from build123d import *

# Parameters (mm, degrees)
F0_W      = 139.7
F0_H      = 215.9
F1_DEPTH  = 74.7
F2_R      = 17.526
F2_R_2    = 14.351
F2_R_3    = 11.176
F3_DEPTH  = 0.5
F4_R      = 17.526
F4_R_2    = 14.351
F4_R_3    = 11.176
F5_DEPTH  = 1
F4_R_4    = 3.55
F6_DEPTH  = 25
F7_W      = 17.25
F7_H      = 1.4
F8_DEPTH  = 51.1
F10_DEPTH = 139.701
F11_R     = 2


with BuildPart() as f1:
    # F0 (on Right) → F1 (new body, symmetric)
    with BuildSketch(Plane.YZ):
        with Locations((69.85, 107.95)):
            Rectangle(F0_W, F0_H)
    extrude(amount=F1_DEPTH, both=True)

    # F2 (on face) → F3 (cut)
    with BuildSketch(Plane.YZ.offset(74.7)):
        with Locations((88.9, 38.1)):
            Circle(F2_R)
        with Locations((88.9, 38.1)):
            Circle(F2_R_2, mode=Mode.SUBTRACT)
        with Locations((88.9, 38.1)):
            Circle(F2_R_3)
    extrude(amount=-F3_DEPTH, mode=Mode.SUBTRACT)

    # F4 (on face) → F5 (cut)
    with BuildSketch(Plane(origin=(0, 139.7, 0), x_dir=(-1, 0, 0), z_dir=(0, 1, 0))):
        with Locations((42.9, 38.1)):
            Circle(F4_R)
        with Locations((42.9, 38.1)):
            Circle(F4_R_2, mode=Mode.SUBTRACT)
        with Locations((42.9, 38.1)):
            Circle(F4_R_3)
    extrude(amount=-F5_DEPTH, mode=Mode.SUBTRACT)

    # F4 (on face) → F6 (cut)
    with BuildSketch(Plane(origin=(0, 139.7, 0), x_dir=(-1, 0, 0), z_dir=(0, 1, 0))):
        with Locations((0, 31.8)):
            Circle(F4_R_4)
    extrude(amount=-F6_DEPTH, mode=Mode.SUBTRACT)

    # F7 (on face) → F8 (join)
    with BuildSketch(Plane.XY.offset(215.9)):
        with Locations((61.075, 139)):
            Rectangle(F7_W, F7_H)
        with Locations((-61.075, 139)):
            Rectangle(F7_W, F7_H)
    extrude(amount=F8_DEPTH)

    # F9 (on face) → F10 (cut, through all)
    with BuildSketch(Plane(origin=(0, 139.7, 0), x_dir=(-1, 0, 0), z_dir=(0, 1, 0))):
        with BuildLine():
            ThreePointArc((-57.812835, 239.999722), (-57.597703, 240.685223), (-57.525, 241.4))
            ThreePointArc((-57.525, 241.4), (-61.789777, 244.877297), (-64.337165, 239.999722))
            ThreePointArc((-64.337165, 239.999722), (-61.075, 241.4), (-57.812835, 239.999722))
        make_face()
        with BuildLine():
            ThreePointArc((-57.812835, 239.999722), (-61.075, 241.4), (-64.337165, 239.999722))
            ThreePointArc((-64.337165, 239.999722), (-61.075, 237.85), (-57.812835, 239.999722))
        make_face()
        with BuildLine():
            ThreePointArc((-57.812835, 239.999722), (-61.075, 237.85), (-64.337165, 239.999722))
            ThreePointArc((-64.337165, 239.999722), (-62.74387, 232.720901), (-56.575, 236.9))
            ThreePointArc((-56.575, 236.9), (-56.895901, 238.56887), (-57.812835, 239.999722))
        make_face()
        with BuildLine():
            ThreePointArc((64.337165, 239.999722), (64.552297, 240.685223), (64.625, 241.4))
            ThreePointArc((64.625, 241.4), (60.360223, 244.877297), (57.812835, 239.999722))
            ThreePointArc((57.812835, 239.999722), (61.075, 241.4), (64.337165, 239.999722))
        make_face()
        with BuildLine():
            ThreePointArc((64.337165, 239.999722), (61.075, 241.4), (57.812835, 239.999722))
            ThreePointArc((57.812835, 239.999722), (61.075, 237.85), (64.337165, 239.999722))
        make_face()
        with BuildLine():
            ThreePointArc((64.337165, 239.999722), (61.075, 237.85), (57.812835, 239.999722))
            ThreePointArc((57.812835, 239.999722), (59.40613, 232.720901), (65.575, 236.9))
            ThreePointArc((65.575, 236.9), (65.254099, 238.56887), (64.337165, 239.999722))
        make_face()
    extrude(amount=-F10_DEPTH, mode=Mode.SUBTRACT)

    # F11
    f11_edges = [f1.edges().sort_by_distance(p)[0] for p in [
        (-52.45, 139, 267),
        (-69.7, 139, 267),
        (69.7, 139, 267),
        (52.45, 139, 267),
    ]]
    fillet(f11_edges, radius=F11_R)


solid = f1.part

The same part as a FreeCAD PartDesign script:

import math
import FreeCAD as App
import Part
import Sketcher
Q = App.Units.Quantity


def edges_at(feature, points):
    """Names of the edges that pass closest to the given points."""
    edges = feature.Shape.Edges
    near = lambda p: min(range(len(edges)), key=lambda i: edges[i].distToShape(Part.Vertex(*p))[0])
    return sorted({f"Edge{near(p) + 1}" for p in points})

doc = App.newDocument("Part")
body = doc.addObject("PartDesign::Body", "Body")

sketch1 = body.newObject("Sketcher::SketchObject", "Sketch")
sketch1.AttachmentSupport = (doc.getObject("YZ_Plane"), [""])
sketch1.MapMode = "FlatFace"
sketch1.addGeometry([
    Part.LineSegment(App.Vector(0, 216, 0), App.Vector(0, 0, 0)),
    Part.LineSegment(App.Vector(0, 0, 0), App.Vector(140, 0, 0)),
    Part.LineSegment(App.Vector(140, 0, 0), App.Vector(140, 216, 0)),
    Part.LineSegment(App.Vector(140, 216, 0), App.Vector(0, 216, 0)),
], False)
sketch1.addConstraint([
    Sketcher.Constraint("Coincident", 0, 2, 1, 1),
    Sketcher.Constraint("Coincident", 1, 2, 2, 1),
    Sketcher.Constraint("Coincident", 2, 2, 3, 1),
    Sketcher.Constraint("Coincident", 3, 2, 0, 1),
    Sketcher.Constraint("Vertical", 0),
    Sketcher.Constraint("Horizontal", 1),
    Sketcher.Constraint("Vertical", 2),
    Sketcher.Constraint("Horizontal", 3),
    Sketcher.Constraint("Coincident", 0, 2, -1, 1),
    Sketcher.Constraint("DistanceX", 1, 1, 1, 2, Q("139.7 mm")),
    Sketcher.Constraint("DistanceY", 0, 2, 0, 1, Q("215.9 mm")),
])
pad1 = body.newObject("PartDesign::Pad", "Pad")
pad1.Profile = sketch1
pad1.Length = 149.4
pad1.Midplane = True

sketch2 = body.newObject("Sketcher::SketchObject", "Sketch001")
sketch2.AttachmentSupport = (doc.getObject("YZ_Plane"), [""])
sketch2.MapMode = "FlatFace"
sketch2.AttachmentOffset = App.Placement(App.Vector(0, 0, 74.7), App.Rotation())
sketch2.addGeometry([
    Part.Circle(App.Vector(89, 38, 0), App.Vector(0, 0, 1), 18),
    Part.Circle(App.Vector(89, 38, 0), App.Vector(0, 0, 1), 14),
    Part.Circle(App.Vector(89, 38, 0), App.Vector(0, 0, 1), 11),
], False)
sketch2.addConstraint([
    Sketcher.Constraint("Coincident", 1, 3, 0, 3),
    Sketcher.Constraint("Coincident", 2, 3, 0, 3),
    Sketcher.Constraint("Diameter", 0, Q("35.052 mm")),
    Sketcher.Constraint("Diameter", 1, Q("28.702 mm")),
    Sketcher.Constraint("Diameter", 2, Q("22.352 mm")),
    Sketcher.Constraint("DistanceX", -1, 1, 0, 3, Q("88.9 mm")),
    Sketcher.Constraint("DistanceY", -1, 1, 0, 3, Q("38.1 mm")),
])
pocket1 = body.newObject("PartDesign::Pocket", "Pocket")
pocket1.Profile = sketch2
pocket1.Length = 0.5

sketch3 = body.newObject("Sketcher::SketchObject", "Sketch002")
sketch3.AttachmentSupport = (doc.getObject("XZ_Plane"), [""])
sketch3.MapMode = "FlatFace"
sketch3.AttachmentOffset = App.Placement(App.Vector(0, 0, -139.7), App.Rotation())
sketch3.addGeometry([
    Part.Circle(App.Vector(-43, 38, 0), App.Vector(0, 0, 1), 18),
    Part.Circle(App.Vector(-43, 38, 0), App.Vector(0, 0, 1), 14),
    Part.Circle(App.Vector(-43, 38, 0), App.Vector(0, 0, 1), 11),
], False)
sketch3.addConstraint([
    Sketcher.Constraint("Coincident", 1, 3, 0, 3),
    Sketcher.Constraint("Coincident", 2, 3, 0, 3),
    Sketcher.Constraint("Diameter", 0, Q("35.052 mm")),
    Sketcher.Constraint("Diameter", 1, Q("28.702 mm")),
    Sketcher.Constraint("Diameter", 2, Q("22.352 mm")),
    Sketcher.Constraint("DistanceX", 0, 3, -1, 1, Q("42.9 mm")),
    Sketcher.Constraint("DistanceY", -1, 1, 0, 3, Q("38.1 mm")),
])
pocket2 = body.newObject("PartDesign::Pocket", "Pocket001")
pocket2.Profile = sketch3
pocket2.Length = 1
pocket2.Reversed = True

sketch4 = body.newObject("Sketcher::SketchObject", "Sketch003")
sketch4.AttachmentSupport = (doc.getObject("XZ_Plane"), [""])
sketch4.MapMode = "FlatFace"
sketch4.AttachmentOffset = App.Placement(App.Vector(0, 0, -139.7), App.Rotation())
sketch4.addGeometry(Part.Circle(App.Vector(0, 31.8, 0), App.Vector(0, 0, 1), 3.5), False)
sketch4.addConstraint([
    Sketcher.Constraint("PointOnObject", 0, 3, -2),
    Sketcher.Constraint("Diameter", 0, Q("7.1 mm")),
    Sketcher.Constraint("DistanceY", -1, 1, 0, 3, Q("31.8 mm")),
])
pocket3 = body.newObject("PartDesign::Pocket", "Pocket002")
pocket3.Profile = sketch4
pocket3.Length = 25
pocket3.Reversed = True

sketch5 = body.newObject("Sketcher::SketchObject", "Sketch004")
sketch5.AttachmentSupport = (doc.getObject("XY_Plane"), [""])
sketch5.MapMode = "FlatFace"
sketch5.AttachmentOffset = App.Placement(App.Vector(0, 0, 215.9), App.Rotation())
sketch5.addGeometry([
    Part.LineSegment(App.Vector(52.5, 139.7, 0), App.Vector(52.5, 138.3, 0)),
    Part.LineSegment(App.Vector(52.5, 138.3, 0), App.Vector(69.7, 138.3, 0)),
    Part.LineSegment(App.Vector(69.7, 138.3, 0), App.Vector(69.7, 139.7, 0)),
    Part.LineSegment(App.Vector(69.7, 139.7, 0), App.Vector(52.5, 139.7, 0)),
    Part.LineSegment(App.Vector(-69.7, 139.7, 0), App.Vector(-69.7, 138.3, 0)),
    Part.LineSegment(App.Vector(-69.7, 138.3, 0), App.Vector(-52.5, 138.3, 0)),
    Part.LineSegment(App.Vector(-52.5, 138.3, 0), App.Vector(-52.5, 139.7, 0)),
    Part.LineSegment(App.Vector(-52.5, 139.7, 0), App.Vector(-69.7, 139.7, 0)),
], False)
sketch5.addConstraint([
    Sketcher.Constraint("Coincident", 0, 2, 1, 1),
    Sketcher.Constraint("Coincident", 1, 2, 2, 1),
    Sketcher.Constraint("Coincident", 2, 2, 3, 1),
    Sketcher.Constraint("Coincident", 3, 2, 0, 1),
    Sketcher.Constraint("Coincident", 4, 2, 5, 1),
    Sketcher.Constraint("Coincident", 5, 2, 6, 1),
    Sketcher.Constraint("Coincident", 6, 2, 7, 1),
    Sketcher.Constraint("Coincident", 7, 2, 4, 1),
    Sketcher.Constraint("Vertical", 0),
    Sketcher.Constraint("Horizontal", 1),
    Sketcher.Constraint("Vertical", 2),
    Sketcher.Constraint("Horizontal", 3),
    Sketcher.Constraint("Vertical", 4),
    Sketcher.Constraint("Horizontal", 5),
    Sketcher.Constraint("Vertical", 6),
    Sketcher.Constraint("Horizontal", 7),
    Sketcher.Constraint("Symmetric", 1, 2, 4, 2, -2),
    Sketcher.Constraint("Symmetric", 3, 2, 6, 2, -2),
    Sketcher.Constraint("DistanceY", 0, 2, 0, 1, Q("1.4 mm")),
    Sketcher.Constraint("DistanceX", 1, 1, 1, 2, Q("17.25 mm")),
    Sketcher.Constraint("DistanceY", -1, 1, 0, 2, Q("138.3 mm")),
    Sketcher.Constraint("DistanceX", -1, 1, 1, 2, Q("69.7 mm")),
])
pad2 = body.newObject("PartDesign::Pad", "Pad001")
pad2.Profile = sketch5
pad2.Length = 51.1

sketch6 = body.newObject("Sketcher::SketchObject", "Sketch005")
sketch6.AttachmentSupport = (doc.getObject("XZ_Plane"), [""])
sketch6.MapMode = "FlatFace"
sketch6.AttachmentOffset = App.Placement(App.Vector(0, 0, -139.7), App.Rotation())
sketch6.addGeometry([
    Part.ArcOfCircle(Part.Circle(App.Vector(61.1, 241.4, 0), App.Vector(0, 0, 1), 3.5), math.radians(180), math.radians(203)),
    Part.ArcOfCircle(Part.Circle(App.Vector(61.1, 241.4, 0), App.Vector(0, 0, 1), 3.5), math.radians(-23), math.radians(180)),
    Part.ArcOfCircle(Part.Circle(App.Vector(61.1, 236.9, 0), App.Vector(0, 0, 1), 4.5), math.radians(-180), math.radians(44)),
    Part.ArcOfCircle(Part.Circle(App.Vector(61.1, 236.9, 0), App.Vector(0, 0, 1), 4.5), math.radians(136), math.radians(180)),
    Part.ArcOfCircle(Part.Circle(App.Vector(-61.1, 241.4, 0), App.Vector(0, 0, 1), 3.5), math.radians(180), math.radians(203)),
    Part.ArcOfCircle(Part.Circle(App.Vector(-61.1, 241.4, 0), App.Vector(0, 0, 1), 3.5), math.radians(-23), math.radians(180)),
    Part.ArcOfCircle(Part.Circle(App.Vector(-61.1, 236.9, 0), App.Vector(0, 0, 1), 4.5), math.radians(-180), math.radians(44)),
    Part.ArcOfCircle(Part.Circle(App.Vector(-61.1, 236.9, 0), App.Vector(0, 0, 1), 4.5), math.radians(136), math.radians(180)),
], False)
sketch6.addConstraint([
    Sketcher.Constraint("Tangent", 0, 1, 1, 2),
    Sketcher.Constraint("Coincident", 1, 1, 2, 2),
    Sketcher.Constraint("Tangent", 2, 1, 3, 2),
    Sketcher.Constraint("Coincident", 3, 1, 0, 2),
    Sketcher.Constraint("Tangent", 4, 1, 5, 2),
    Sketcher.Constraint("Coincident", 5, 1, 6, 2),
    Sketcher.Constraint("Tangent", 6, 1, 7, 2),
    Sketcher.Constraint("Coincident", 7, 1, 4, 2),
    Sketcher.Constraint("Equal", 0, 4),
    Sketcher.Constraint("Equal", 1, 5),
    Sketcher.Constraint("Equal", 2, 6),
    Sketcher.Constraint("Equal", 3, 7),
    Sketcher.Constraint("Symmetric", 1, 3, 4, 3, -2),
    Sketcher.Constraint("Symmetric", 2, 3, 6, 3, -2),
    Sketcher.Constraint("Symmetric", 3, 1, 5, 1, -2),
    Sketcher.Constraint("Horizontal", 5, 3, 0, 1),
    Sketcher.Constraint("Horizontal", 6, 3, 2, 1),
    Sketcher.Constraint("Horizontal", 1, 1, 3, 1),
    Sketcher.Constraint("Horizontal", 0, 1, 4, 1),
    Sketcher.Constraint("Horizontal", 2, 1, 6, 1),
    Sketcher.Constraint("Radius", 2, Q("4.5 mm")),
    Sketcher.Constraint("Radius", 1, Q("3.55 mm")),
    Sketcher.Constraint("DistanceY", -1, 1, 0, 3, Q("241.399999 mm")),
    Sketcher.Constraint("DistanceY", -1, 1, 2, 3, Q("236.9 mm")),
    Sketcher.Constraint("DistanceX", 5, 3, 0, 1, Q("118.6 mm")),
])
pocket4 = body.newObject("PartDesign::Pocket", "Pocket003")
pocket4.Profile = sketch6
pocket4.Type = "ThroughAll"
pocket4.Reversed = True
doc.recompute()

fillet = body.newObject("PartDesign::Fillet", "Fillet")
fillet.Base = (pocket4, edges_at(pocket4, [
    (-52.45, 139, 267),
    (-69.7, 139, 267),
    (69.7, 139, 267),
    (52.45, 139, 267),
]))
fillet.Radius = 2

doc.recompute()
